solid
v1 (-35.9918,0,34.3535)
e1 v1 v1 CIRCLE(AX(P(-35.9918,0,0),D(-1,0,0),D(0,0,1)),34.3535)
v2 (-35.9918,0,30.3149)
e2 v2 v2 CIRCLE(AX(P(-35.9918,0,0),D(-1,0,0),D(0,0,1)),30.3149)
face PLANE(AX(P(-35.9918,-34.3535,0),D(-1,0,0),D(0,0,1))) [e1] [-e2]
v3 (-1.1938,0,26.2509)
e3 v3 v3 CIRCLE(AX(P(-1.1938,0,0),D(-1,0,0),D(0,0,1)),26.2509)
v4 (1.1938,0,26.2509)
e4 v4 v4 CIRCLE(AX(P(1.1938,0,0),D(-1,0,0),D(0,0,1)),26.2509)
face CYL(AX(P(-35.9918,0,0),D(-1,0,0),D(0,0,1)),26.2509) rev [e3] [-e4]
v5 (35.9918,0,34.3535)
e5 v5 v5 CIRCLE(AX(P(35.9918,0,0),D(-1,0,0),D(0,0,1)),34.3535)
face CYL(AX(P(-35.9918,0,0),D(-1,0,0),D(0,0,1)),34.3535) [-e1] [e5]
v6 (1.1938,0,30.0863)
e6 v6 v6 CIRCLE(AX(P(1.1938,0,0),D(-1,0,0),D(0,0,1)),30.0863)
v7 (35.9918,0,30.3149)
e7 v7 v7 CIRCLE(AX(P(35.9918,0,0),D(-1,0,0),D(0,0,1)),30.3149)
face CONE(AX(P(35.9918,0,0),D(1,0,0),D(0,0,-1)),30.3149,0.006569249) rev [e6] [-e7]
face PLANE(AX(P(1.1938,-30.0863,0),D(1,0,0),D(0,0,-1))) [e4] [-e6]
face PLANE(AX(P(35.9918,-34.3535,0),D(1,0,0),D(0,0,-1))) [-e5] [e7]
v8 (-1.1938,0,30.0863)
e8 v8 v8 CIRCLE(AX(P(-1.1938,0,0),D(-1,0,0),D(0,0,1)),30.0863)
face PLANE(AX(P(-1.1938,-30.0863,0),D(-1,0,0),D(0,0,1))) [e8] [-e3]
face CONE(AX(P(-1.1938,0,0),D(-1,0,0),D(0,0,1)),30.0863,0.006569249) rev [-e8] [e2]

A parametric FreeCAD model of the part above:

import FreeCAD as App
import Part
import Sketcher

V = App.Vector
Q = App.Units.Quantity

doc = App.newDocument("Part")
body = doc.addObject("PartDesign::Body", "Body")

sketch1 = body.newObject("Sketcher::SketchObject", "Sketch")
sketch1.AttachmentSupport = (doc.getObject("XY_Plane"), [""])
sketch1.MapMode = "FlatFace"
sketch1.addGeometry([
    Part.LineSegment(V(1.1938, -26.2509, 0), V(-1.1938, -26.2509, 0)),
    Part.LineSegment(V(-1.1938, -26.2509, 0), V(-1.1938, -30.0863, 0)),
    Part.LineSegment(V(-1.1938, -30.0863, 0), V(-35.9918, -30.3149, 0)),
    Part.LineSegment(V(-35.9918, -30.3149, 0), V(-35.9918, -34.3535, 0)),
    Part.LineSegment(V(-35.9918, -34.3535, 0), V(35.9918, -34.3535, 0)),
    Part.LineSegment(V(35.9918, -34.3535, 0), V(35.9918, -30.3149, 0)),
    Part.LineSegment(V(35.9918, -30.3149, 0), V(1.1938, -30.0863, 0)),
    Part.LineSegment(V(1.1938, -30.0863, 0), V(1.1938, -26.2509, 0)),
], False)
sketch1.addConstraint([
    Sketcher.Constraint("Coincident", 0, 2, 1, 1),
    Sketcher.Constraint("Coincident", 1, 2, 2, 1),
    Sketcher.Constraint("Coincident", 2, 2, 3, 1),
    Sketcher.Constraint("Coincident", 3, 2, 4, 1),
    Sketcher.Constraint("Coincident", 4, 2, 5, 1),
    Sketcher.Constraint("Coincident", 5, 2, 6, 1),
    Sketcher.Constraint("Coincident", 6, 2, 7, 1),
    Sketcher.Constraint("Coincident", 7, 2, 0, 1),
    Sketcher.Constraint("Horizontal", 0),
    Sketcher.Constraint("Vertical", 1),
    Sketcher.Constraint("Vertical", 3),
    Sketcher.Constraint("Horizontal", 4),
    Sketcher.Constraint("Vertical", 5),
    Sketcher.Constraint("Vertical", 7),
    Sketcher.Constraint("Symmetric", 2, 2, 5, 2, -2),
    Sketcher.Constraint("Symmetric", 1, 2, 6, 2, -2),
    Sketcher.Constraint("DistanceX", 0, 2, 0, 1, Q("0.094 in")),
    Sketcher.Constraint("DistanceX", 4, 1, 4, 2, Q("2.834 in")),
    Sketcher.Constraint("DistanceY", 1, 2, 1, 1, Q("0.151 in")),
    Sketcher.Constraint("DistanceY", 3, 2, 3, 1, Q("0.159 in")),
    Sketcher.Constraint("DistanceY", 2, 2, 0, 2, Q("0.16 in")),
    Sketcher.Constraint("DistanceY", 0, 2, -1, 1, Q("1.0335 in")),
])
revolution = body.newObject("PartDesign::Revolution", "Revolution")
revolution.Profile = sketch1
revolution.ReferenceAxis = (sketch1, ["H_Axis"])
revolution.Angle = 360

doc.recompute()
